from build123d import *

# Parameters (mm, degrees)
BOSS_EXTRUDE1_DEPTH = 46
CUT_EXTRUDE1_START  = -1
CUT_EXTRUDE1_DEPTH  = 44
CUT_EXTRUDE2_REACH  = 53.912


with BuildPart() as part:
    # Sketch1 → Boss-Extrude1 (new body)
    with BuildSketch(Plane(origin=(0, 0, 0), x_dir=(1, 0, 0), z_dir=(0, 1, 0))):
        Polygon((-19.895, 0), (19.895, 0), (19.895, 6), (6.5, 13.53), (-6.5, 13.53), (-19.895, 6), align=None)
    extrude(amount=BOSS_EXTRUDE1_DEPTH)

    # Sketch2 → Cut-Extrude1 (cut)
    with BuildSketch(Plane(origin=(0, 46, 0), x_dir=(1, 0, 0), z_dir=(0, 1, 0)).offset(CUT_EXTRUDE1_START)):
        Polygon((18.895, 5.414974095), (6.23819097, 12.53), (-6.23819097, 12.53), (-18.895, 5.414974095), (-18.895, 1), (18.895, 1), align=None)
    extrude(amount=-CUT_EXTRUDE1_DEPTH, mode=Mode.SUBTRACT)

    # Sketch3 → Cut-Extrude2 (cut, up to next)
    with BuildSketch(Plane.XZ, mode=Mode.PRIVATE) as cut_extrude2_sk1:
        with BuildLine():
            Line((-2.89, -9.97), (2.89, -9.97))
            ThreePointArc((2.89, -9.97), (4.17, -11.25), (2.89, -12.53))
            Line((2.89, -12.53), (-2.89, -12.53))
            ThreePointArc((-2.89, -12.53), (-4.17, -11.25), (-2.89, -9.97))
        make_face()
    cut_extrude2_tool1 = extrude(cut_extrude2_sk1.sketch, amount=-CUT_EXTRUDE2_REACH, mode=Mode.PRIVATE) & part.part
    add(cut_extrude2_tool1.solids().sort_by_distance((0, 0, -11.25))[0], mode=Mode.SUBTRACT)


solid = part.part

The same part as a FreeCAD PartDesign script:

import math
import FreeCAD as App
import Part
import Sketcher

V = App.Vector
Q = App.Units.Quantity

doc = App.newDocument("Part")
body = doc.addObject("PartDesign::Body", "Body")

sketch1 = body.newObject("Sketcher::SketchObject", "Sketch")
sketch1.AttachmentSupport = (doc.getObject("XZ_Plane"), [""])
sketch1.MapMode = "FlatFace"
sketch1.addGeometry(Part.LineSegment(V(-19.895, 0, 0), V(19.895, 0, 0)), False)
sketch1.addGeometry(Part.LineSegment(V(19.895, 0, 0), V(19.895, -6, 0)), False)
sketch1.addGeometry(Part.LineSegment(V(19.895, -6, 0), V(6.5, -13.53, 0)), False)
sketch1.addGeometry(Part.LineSegment(V(6.5, -13.53, 0), V(-6.5, -13.53, 0)), False)
sketch1.addGeometry(Part.LineSegment(V(-6.5, -13.53, 0), V(-19.895, -6, 0)), False)
sketch1.addGeometry(Part.LineSegment(V(-19.895, -6, 0), V(-19.895, 0, 0)), False)
sketch1.addConstraint(Sketcher.Constraint("Coincident", 0, 2, 1, 1))
sketch1.addConstraint(Sketcher.Constraint("Coincident", 1, 2, 2, 1))
sketch1.addConstraint(Sketcher.Constraint("Coincident", 2, 2, 3, 1))
sketch1.addConstraint(Sketcher.Constraint("Coincident", 3, 2, 4, 1))
sketch1.addConstraint(Sketcher.Constraint("Coincident", 4, 2, 5, 1))
sketch1.addConstraint(Sketcher.Constraint("Coincident", 5, 2, 0, 1))
sketch1.addConstraint(Sketcher.Constraint("Horizontal", 0))
sketch1.addConstraint(Sketcher.Constraint("Vertical", 1))
sketch1.addConstraint(Sketcher.Constraint("Horizontal", 3))
sketch1.addConstraint(Sketcher.Constraint("Vertical", 5))
sketch1.addConstraint(Sketcher.Constraint("Symmetric", 0, 2, 5, 2, -1, 1))
sketch1.addConstraint(Sketcher.Constraint("Horizontal", 1, 2, 4, 2))
sketch1.addConstraint(Sketcher.Constraint("Equal", 2, 4))
sketch1.addConstraint(Sketcher.Constraint("DistanceX", 3, 2, 3, 1, Q("13 mm")))
sketch1.addConstraint(Sketcher.Constraint("DistanceY", 1, 2, 1, 1, Q("6 mm")))
sketch1.addConstraint(Sketcher.Constraint("DistanceX", 0, 1, 0, 2, Q("39.79 mm")))
sketch1.addConstraint(Sketcher.Constraint("DistanceY", 2, 2, -1, 1, Q("13.53 mm")))
pad1 = body.newObject("PartDesign::Pad", "Pad")
pad1.Profile = sketch1
pad1.Length = 46
pad1.Reversed = True

sketch2 = body.newObject("Sketcher::SketchObject", "Sketch001")
sketch2.AttachmentSupport = (doc.getObject("XZ_Plane"), [""])
sketch2.MapMode = "FlatFace"
sketch2.AttachmentOffset = App.Placement(V(0, 0, -45), App.Rotation())
sketch2.addGeometry(Part.LineSegment(V(18.895, -5.414974, 0), V(6.238191, -12.53, 0)), False)
sketch2.addGeometry(Part.LineSegment(V(6.238191, -12.53, 0), V(-6.238191, -12.53, 0)), False)
sketch2.addGeometry(Part.LineSegment(V(-6.238191, -12.53, 0), V(-18.895, -5.414974, 0)), False)
sketch2.addGeometry(Part.LineSegment(V(-18.895, -5.414974, 0), V(-18.895, -1, 0)), False)
sketch2.addGeometry(Part.LineSegment(V(-18.895, -1, 0), V(18.895, -1, 0)), False)
sketch2.addGeometry(Part.LineSegment(V(18.895, -1, 0), V(18.895, -5.414974, 0)), False)
sketch2.addConstraint(Sketcher.Constraint("Coincident", 0, 2, 1, 1))
sketch2.addConstraint(Sketcher.Constraint("Coincident", 1, 2, 2, 1))
sketch2.addConstraint(Sketcher.Constraint("Coincident", 2, 2, 3, 1))
sketch2.addConstraint(Sketcher.Constraint("Coincident", 3, 2, 4, 1))
sketch2.addConstraint(Sketcher.Constraint("Coincident", 4, 2, 5, 1))
sketch2.addConstraint(Sketcher.Constraint("Coincident", 5, 2, 0, 1))
sketch2.addConstraint(Sketcher.Constraint("Horizontal", 1))
sketch2.addConstraint(Sketcher.Constraint("Vertical", 3))
sketch2.addConstraint(Sketcher.Constraint("Horizontal", 4))
sketch2.addConstraint(Sketcher.Constraint("Vertical", 5))
sketch2.addConstraint(Sketcher.Constraint("Symmetric", 2, 2, 5, 2, -2))
sketch2.addConstraint(Sketcher.Constraint("Equal", 0, 2))
sketch2.addConstraint(Sketcher.Constraint("DistanceY", 3, 2, -1, 1, Q("1 mm")))
sketch2.addConstraint(Sketcher.Constraint("DistanceX", 4, 1, 4, 2, Q("37.79 mm")))
sketch2.addConstraint(Sketcher.Constraint("DistanceY", 0, 2, -1, 1, Q("12.53 mm")))
sketch2.addConstraint(Sketcher.Constraint("DistanceX", 1, 2, 1, 1, Q("12.476382 mm")))
sketch2.addConstraint(Sketcher.Constraint("DistanceY", 3, 1, 3, 2, Q("4.414974 mm")))
pocket1 = body.newObject("PartDesign::Pocket", "Pocket")
pocket1.Profile = sketch2
pocket1.Length = 44
pocket1.Reversed = True

sketch3 = body.newObject("Sketcher::SketchObject", "Sketch002")
sketch3.AttachmentSupport = (doc.getObject("XZ_Plane"), [""])
sketch3.MapMode = "FlatFace"
sketch3.addGeometry(Part.LineSegment(V(2.89, -9.97, 0), V(-2.89, -9.97, 0)), False)
sketch3.addGeometry(Part.ArcOfCircle(Part.Circle(V(-2.89, -11.25, 0), V(0, 0, 1), 1.28), math.radians(90), math.radians(270)), False)
sketch3.addGeometry(Part.LineSegment(V(-2.89, -12.53, 0), V(2.89, -12.53, 0)), False)
sketch3.addGeometry(Part.ArcOfCircle(Part.Circle(V(2.89, -11.25, 0), V(0, 0, 1), 1.28), math.radians(-90), math.radians(90)), False)
sketch3.addConstraint(Sketcher.Constraint("Tangent", 0, 2, 1, 1))
sketch3.addConstraint(Sketcher.Constraint("Tangent", 1, 2, 2, 1))
sketch3.addConstraint(Sketcher.Constraint("Tangent", 2, 2, 3, 1))
sketch3.addConstraint(Sketcher.Constraint("Tangent", 3, 2, 0, 1))
sketch3.addConstraint(Sketcher.Constraint("Horizontal", 0))
sketch3.addConstraint(Sketcher.Constraint("Horizontal", 2))
sketch3.addConstraint(Sketcher.Constraint("Radius", 1, Q("1.28 mm")))
sketch3.addConstraint(Sketcher.Constraint("DistanceX", 0, 2, 0, 1, Q("5.78 mm")))
sketch3.addConstraint(Sketcher.Constraint("DistanceX", 1, 3, -1, 1, Q("2.89 mm")))
sketch3.addConstraint(Sketcher.Constraint("DistanceY", 1, 3, -1, 1, Q("11.25 mm")))
pocket2 = body.newObject("PartDesign::Pocket", "Pocket001")
pocket2.Profile = sketch3
pocket2.Type = "UpToFirst"

doc.recompute()
